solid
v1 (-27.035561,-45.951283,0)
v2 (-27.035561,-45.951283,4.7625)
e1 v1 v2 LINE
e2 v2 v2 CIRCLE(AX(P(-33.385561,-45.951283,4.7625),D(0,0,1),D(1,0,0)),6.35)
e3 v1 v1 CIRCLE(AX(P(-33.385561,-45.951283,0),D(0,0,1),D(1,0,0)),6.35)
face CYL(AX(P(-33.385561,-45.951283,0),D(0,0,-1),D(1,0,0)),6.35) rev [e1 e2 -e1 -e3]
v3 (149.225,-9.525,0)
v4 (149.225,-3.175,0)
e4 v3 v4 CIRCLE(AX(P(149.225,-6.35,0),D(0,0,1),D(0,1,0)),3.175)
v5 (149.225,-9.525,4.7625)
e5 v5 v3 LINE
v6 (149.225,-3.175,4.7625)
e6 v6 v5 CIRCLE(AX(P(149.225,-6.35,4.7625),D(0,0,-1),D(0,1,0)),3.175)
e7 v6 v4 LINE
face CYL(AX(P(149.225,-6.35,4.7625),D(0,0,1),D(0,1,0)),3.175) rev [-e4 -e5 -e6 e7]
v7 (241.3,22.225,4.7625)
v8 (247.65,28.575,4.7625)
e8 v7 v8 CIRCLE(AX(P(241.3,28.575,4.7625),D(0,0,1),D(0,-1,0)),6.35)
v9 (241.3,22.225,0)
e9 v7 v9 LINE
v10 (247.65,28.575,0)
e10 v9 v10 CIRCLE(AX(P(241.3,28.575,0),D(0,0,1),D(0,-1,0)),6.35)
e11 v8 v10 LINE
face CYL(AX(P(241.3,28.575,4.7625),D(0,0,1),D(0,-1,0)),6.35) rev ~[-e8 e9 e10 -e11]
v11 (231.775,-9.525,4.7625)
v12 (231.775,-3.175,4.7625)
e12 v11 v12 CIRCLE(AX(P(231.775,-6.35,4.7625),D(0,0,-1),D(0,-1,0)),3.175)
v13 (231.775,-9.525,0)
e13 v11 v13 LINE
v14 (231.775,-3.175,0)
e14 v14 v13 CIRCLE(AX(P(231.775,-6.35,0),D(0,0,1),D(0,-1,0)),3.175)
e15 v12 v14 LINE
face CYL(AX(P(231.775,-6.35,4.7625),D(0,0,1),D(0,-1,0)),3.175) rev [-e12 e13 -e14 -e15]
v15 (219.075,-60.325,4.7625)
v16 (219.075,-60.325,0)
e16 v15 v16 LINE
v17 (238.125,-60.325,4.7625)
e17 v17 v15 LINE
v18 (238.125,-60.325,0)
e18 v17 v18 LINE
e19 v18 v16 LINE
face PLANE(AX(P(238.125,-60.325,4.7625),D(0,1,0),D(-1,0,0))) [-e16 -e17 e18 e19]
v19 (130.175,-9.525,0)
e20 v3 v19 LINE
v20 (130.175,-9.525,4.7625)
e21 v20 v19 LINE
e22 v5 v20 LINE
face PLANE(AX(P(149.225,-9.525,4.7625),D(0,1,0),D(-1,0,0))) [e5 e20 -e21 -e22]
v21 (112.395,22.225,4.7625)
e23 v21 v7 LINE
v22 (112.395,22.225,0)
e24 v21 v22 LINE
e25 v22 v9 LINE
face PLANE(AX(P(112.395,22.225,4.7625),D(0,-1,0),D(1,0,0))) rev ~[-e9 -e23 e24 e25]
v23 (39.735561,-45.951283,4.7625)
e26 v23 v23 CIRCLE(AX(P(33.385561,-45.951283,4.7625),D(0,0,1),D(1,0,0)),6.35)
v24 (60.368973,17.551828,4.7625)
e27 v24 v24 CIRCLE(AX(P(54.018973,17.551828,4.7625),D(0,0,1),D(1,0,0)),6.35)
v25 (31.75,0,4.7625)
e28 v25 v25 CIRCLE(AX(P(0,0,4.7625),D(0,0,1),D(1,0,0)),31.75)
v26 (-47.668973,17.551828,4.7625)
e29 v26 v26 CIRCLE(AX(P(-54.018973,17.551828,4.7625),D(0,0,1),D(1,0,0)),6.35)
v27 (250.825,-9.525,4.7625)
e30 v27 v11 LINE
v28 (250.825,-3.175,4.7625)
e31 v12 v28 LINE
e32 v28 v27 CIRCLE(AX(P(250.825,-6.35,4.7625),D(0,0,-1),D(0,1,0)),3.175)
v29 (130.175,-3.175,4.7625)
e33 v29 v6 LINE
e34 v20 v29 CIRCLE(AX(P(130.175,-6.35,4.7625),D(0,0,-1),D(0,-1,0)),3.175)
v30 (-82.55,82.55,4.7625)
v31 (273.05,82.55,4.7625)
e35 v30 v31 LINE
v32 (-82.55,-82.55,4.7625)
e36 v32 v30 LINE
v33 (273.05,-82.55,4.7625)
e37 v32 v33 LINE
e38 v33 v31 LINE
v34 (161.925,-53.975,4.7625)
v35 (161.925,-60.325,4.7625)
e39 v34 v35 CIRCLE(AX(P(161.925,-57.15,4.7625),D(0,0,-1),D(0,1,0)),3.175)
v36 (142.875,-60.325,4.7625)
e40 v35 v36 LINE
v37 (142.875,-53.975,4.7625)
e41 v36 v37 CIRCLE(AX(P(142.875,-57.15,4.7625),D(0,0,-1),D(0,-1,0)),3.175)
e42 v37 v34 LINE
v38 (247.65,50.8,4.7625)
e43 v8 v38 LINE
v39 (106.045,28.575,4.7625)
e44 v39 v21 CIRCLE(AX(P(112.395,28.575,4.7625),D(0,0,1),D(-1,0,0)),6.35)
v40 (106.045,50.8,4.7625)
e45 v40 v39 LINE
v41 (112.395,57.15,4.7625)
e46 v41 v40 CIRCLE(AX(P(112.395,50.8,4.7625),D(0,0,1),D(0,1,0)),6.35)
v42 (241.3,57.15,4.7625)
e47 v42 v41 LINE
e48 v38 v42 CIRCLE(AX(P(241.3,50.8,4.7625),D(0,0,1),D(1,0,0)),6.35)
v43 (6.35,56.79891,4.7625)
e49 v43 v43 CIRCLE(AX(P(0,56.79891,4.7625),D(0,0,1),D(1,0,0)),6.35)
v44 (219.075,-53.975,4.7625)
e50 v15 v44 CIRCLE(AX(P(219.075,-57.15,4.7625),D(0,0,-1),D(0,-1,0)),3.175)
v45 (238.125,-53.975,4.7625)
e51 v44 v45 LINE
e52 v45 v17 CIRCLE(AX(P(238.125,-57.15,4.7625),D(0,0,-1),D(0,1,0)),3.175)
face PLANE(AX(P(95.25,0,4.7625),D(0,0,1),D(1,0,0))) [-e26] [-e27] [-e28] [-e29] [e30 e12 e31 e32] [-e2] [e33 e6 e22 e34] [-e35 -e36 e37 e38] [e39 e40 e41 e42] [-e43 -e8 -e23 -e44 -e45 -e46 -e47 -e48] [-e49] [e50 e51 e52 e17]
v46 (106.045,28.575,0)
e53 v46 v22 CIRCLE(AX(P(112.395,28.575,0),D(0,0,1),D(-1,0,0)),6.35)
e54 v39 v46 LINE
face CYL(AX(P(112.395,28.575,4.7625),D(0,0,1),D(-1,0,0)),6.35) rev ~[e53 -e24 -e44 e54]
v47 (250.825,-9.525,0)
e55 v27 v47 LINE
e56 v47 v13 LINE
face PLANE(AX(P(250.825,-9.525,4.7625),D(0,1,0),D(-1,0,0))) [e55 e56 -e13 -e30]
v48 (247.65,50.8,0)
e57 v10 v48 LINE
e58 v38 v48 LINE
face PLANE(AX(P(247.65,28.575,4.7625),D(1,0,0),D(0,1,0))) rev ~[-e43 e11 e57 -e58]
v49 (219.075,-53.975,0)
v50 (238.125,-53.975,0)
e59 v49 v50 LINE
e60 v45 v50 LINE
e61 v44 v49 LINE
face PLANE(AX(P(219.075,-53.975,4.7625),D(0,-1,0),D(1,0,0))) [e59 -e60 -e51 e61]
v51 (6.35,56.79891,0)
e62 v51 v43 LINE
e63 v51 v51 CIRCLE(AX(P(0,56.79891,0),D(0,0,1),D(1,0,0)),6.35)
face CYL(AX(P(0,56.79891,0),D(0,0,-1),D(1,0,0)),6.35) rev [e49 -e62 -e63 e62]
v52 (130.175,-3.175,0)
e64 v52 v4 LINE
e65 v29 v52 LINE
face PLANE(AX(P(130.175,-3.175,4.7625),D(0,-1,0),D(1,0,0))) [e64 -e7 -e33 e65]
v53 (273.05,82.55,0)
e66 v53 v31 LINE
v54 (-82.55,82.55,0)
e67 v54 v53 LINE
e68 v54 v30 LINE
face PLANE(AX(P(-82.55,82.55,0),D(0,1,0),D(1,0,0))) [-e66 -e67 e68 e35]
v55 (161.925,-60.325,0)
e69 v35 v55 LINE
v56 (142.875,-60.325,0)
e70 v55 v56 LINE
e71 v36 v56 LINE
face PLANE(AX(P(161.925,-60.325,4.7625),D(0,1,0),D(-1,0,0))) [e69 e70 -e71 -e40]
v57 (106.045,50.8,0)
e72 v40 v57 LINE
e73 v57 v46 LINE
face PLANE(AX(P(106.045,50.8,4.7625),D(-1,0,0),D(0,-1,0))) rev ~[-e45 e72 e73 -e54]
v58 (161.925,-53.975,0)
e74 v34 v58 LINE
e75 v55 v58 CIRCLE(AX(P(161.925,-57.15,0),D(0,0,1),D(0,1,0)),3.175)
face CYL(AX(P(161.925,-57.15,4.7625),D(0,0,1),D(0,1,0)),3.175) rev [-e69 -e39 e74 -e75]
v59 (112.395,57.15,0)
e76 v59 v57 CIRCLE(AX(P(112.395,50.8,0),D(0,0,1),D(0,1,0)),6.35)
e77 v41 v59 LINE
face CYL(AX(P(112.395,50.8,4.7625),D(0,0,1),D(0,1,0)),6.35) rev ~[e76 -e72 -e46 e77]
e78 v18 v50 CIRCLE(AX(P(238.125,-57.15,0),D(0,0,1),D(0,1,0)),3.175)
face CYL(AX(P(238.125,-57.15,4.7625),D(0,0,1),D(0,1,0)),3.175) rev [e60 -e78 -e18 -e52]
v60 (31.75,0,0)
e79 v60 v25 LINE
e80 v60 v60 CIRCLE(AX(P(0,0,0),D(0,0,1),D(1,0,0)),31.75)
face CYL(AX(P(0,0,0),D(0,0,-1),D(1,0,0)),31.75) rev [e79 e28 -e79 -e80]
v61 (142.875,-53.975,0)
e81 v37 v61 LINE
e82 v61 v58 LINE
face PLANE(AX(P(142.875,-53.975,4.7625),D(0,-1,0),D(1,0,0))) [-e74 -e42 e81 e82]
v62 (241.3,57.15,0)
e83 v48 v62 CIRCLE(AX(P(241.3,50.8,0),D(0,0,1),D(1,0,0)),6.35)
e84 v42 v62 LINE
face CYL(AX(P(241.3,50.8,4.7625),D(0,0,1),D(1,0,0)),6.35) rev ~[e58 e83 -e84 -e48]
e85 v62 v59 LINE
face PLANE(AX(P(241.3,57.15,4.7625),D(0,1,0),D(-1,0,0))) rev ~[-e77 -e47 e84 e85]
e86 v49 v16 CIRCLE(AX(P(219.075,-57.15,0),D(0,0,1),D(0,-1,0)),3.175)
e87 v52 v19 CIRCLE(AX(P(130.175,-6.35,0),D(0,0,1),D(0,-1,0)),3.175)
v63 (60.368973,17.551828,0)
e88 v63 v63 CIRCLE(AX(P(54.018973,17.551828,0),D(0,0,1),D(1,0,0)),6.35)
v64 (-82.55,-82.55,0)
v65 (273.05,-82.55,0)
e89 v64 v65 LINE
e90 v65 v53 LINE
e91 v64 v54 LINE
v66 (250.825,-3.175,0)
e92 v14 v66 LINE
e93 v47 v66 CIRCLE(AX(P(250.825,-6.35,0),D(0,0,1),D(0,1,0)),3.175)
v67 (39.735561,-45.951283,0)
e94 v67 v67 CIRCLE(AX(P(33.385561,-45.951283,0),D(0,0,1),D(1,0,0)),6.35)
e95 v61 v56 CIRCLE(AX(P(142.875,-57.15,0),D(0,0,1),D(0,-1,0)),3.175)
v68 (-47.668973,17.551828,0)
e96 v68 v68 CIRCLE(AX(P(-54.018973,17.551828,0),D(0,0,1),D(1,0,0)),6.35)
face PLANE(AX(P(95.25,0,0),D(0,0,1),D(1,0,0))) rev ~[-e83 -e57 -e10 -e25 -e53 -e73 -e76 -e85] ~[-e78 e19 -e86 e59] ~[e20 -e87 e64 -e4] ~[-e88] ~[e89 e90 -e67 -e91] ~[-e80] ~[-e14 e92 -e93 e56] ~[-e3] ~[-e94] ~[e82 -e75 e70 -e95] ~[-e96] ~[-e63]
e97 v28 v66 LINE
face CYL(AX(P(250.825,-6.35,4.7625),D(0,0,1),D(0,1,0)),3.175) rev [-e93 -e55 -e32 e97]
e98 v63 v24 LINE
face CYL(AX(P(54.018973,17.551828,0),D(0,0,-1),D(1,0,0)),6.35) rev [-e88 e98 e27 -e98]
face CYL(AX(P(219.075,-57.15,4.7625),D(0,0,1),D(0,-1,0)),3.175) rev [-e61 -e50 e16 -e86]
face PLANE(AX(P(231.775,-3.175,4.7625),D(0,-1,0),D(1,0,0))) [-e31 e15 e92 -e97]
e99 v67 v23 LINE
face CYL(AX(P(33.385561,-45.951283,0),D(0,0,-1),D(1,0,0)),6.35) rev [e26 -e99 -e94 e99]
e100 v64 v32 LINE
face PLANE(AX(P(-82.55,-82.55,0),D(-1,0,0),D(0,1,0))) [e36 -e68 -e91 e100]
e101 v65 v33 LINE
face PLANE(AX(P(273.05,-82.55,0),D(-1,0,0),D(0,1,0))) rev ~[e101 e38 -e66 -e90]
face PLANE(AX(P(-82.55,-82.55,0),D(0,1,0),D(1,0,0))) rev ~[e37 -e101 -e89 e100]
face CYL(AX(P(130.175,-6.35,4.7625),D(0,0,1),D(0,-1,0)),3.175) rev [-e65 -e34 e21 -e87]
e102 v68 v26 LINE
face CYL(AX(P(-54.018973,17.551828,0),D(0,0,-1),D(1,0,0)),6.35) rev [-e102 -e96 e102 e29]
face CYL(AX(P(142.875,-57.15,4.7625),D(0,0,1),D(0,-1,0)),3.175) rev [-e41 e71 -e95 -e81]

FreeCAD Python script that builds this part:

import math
import FreeCAD as App
import Part
import Sketcher
Q = App.Units.Quantity

doc = App.newDocument("Part")
body = doc.addObject("PartDesign::Body", "Body")

sketch1 = doc.addObject("Sketcher::SketchObject", "Sketch")
body.addObject(sketch1)
sketch1.AttachmentSupport = (doc.XY_Plane, [""])
sketch1.MapMode = "FlatFace"
sketch1.addGeometry([
    Part.LineSegment(App.Vector(-82.55, 82.55, 0), App.Vector(-82.55, -82.55, 0)),
    Part.LineSegment(App.Vector(-82.55, -82.55, 0), App.Vector(273.05, -82.55, 0)),
    Part.LineSegment(App.Vector(273.05, -82.55, 0), App.Vector(273.05, 82.55, 0)),
    Part.LineSegment(App.Vector(273.05, 82.55, 0), App.Vector(-82.55, 82.55, 0)),
    Part.Circle(App.Vector(-33.385561, -45.951283, 0), App.Vector(0, 0, 1), 6.35),
    Part.Circle(App.Vector(33.385561, -45.951283, 0), App.Vector(0, 0, 1), 6.35),
    Part.Circle(App.Vector(0, 0, 0), App.Vector(0, 0, 1), 31.75),
    Part.Circle(App.Vector(-54.018973, 17.551828, 0), App.Vector(0, 0, 1), 6.35),
    Part.Circle(App.Vector(54.018973, 17.551828, 0), App.Vector(0, 0, 1), 6.35),
    Part.Circle(App.Vector(0, 56.79891, 0), App.Vector(0, 0, 1), 6.35),
], False)
sketch1.addConstraint([
    Sketcher.Constraint("Coincident", 0, 2, 1, 1),
    Sketcher.Constraint("Coincident", 1, 2, 2, 1),
    Sketcher.Constraint("Coincident", 2, 2, 3, 1),
    Sketcher.Constraint("Coincident", 3, 2, 0, 1),
    Sketcher.Constraint("Vertical", 0),
    Sketcher.Constraint("Horizontal", 1),
    Sketcher.Constraint("Vertical", 2),
    Sketcher.Constraint("Horizontal", 3),
    Sketcher.Constraint("Coincident", 6, 3, -1, 1),
    Sketcher.Constraint("Equal", 4, 5),
    Sketcher.Constraint("Equal", 5, 7),
    Sketcher.Constraint("Equal", 7, 8),
    Sketcher.Constraint("Equal", 8, 9),
    Sketcher.Constraint("Symmetric", 4, 3, 5, 3, -2),
    Sketcher.Constraint("Symmetric", 7, 3, 8, 3, -2),
    Sketcher.Constraint("PointOnObject", 9, 3, -2),
    Sketcher.Constraint("Diameter", 4, Q("0.5 in")),
    Sketcher.Constraint("Diameter", 6, Q("2.5 in")),
    Sketcher.Constraint("DistanceX", 1, 1, 1, 2, Q("14 in")),
    Sketcher.Constraint("DistanceY", 0, 2, 0, 1, Q("6.5 in")),
    Sketcher.Constraint("DistanceX", 0, 2, -1, 1, Q("3.25 in")),
    Sketcher.Constraint("DistanceY", 0, 2, -1, 1, Q("3.25 in")),
    Sketcher.Constraint("DistanceX", 4, 3, -1, 1, 33.385561),
    Sketcher.Constraint("DistanceY", -1, 1, 7, 3, 17.551828),
    Sketcher.Constraint("DistanceY", -1, 1, 9, 3, 56.79891),
    Sketcher.Constraint("DistanceX", 7, 3, 4, 3, 20.633412),
    Sketcher.Constraint("DistanceY", 4, 3, 7, 3, 63.503111),
])
pad1 = doc.addObject("PartDesign::Pad", "Pad")
body.addObject(pad1)
pad1.Profile = sketch1
pad1.Length = Q("0.1875 in")

sketch2 = doc.addObject("Sketcher::SketchObject", "Sketch001")
body.addObject(sketch2)
sketch2.AttachmentSupport = (doc.XY_Plane, [""])
sketch2.MapMode = "FlatFace"
sketch2.AttachmentOffset = App.Placement(App.Vector(0, 0, 0.1875 * 25.4), App.Rotation())
sketch2.addGeometry([
    Part.LineSegment(App.Vector(130.175, -9.525, 0), App.Vector(149.225, -9.525, 0)),
    Part.ArcOfCircle(Part.Circle(App.Vector(149.225, -6.35, 0), App.Vector(0, 0, 1), 3.175), math.radians(-90), math.radians(90)),
    Part.LineSegment(App.Vector(149.225, -3.175, 0), App.Vector(130.175, -3.175, 0)),
    Part.ArcOfCircle(Part.Circle(App.Vector(130.175, -6.35, 0), App.Vector(0, 0, 1), 3.175), math.radians(90), math.radians(270)),
    Part.LineSegment(App.Vector(231.775, -9.525, 0), App.Vector(250.825, -9.525, 0)),
    Part.ArcOfCircle(Part.Circle(App.Vector(250.825, -6.35, 0), App.Vector(0, 0, 1), 3.175), math.radians(-90), math.radians(90)),
    Part.LineSegment(App.Vector(250.825, -3.175, 0), App.Vector(231.775, -3.175, 0)),
    Part.ArcOfCircle(Part.Circle(App.Vector(231.775, -6.35, 0), App.Vector(0, 0, 1), 3.175), math.radians(90), math.radians(270)),
    Part.LineSegment(App.Vector(219.075, -60.325, 0), App.Vector(238.125, -60.325, 0)),
    Part.ArcOfCircle(Part.Circle(App.Vector(238.125, -57.15, 0), App.Vector(0, 0, 1), 3.175), math.radians(-90), math.radians(90)),
    Part.LineSegment(App.Vector(238.125, -53.975, 0), App.Vector(219.075, -53.975, 0)),
    Part.ArcOfCircle(Part.Circle(App.Vector(219.075, -57.15, 0), App.Vector(0, 0, 1), 3.175), math.radians(90), math.radians(270)),
    Part.LineSegment(App.Vector(161.925, -53.975, 0), App.Vector(142.875, -53.975, 0)),
    Part.ArcOfCircle(Part.Circle(App.Vector(142.875, -57.15, 0), App.Vector(0, 0, 1), 3.175), math.radians(90), math.radians(270)),
    Part.LineSegment(App.Vector(142.875, -60.325, 0), App.Vector(161.925, -60.325, 0)),
    Part.ArcOfCircle(Part.Circle(App.Vector(161.925, -57.15, 0), App.Vector(0, 0, 1), 3.175), math.radians(-90), math.radians(90)),
], False)
sketch2.addConstraint([
    Sketcher.Constraint("Tangent", 0, 2, 1, 1),
    Sketcher.Constraint("Tangent", 1, 2, 2, 1),
    Sketcher.Constraint("Tangent", 2, 2, 3, 1),
    Sketcher.Constraint("Tangent", 3, 2, 0, 1),
    Sketcher.Constraint("Tangent", 4, 2, 5, 1),
    Sketcher.Constraint("Tangent", 5, 2, 6, 1),
    Sketcher.Constraint("Tangent", 6, 2, 7, 1),
    Sketcher.Constraint("Tangent", 7, 2, 4, 1),
    Sketcher.Constraint("Tangent", 8, 2, 9, 1),
    Sketcher.Constraint("Tangent", 9, 2, 10, 1),
    Sketcher.Constraint("Tangent", 10, 2, 11, 1),
    Sketcher.Constraint("Tangent", 11, 2, 8, 1),
    Sketcher.Constraint("Tangent", 12, 2, 13, 1),
    Sketcher.Constraint("Tangent", 13, 2, 14, 1),
    Sketcher.Constraint("Tangent", 14, 2, 15, 1),
    Sketcher.Constraint("Tangent", 15, 2, 12, 1),
    Sketcher.Constraint("Horizontal", 0),
    Sketcher.Constraint("Horizontal", 2),
    Sketcher.Constraint("Horizontal", 4),
    Sketcher.Constraint("Horizontal", 6),
    Sketcher.Constraint("Horizontal", 8),
    Sketcher.Constraint("Horizontal", 10),
    Sketcher.Constraint("Horizontal", 12),
    Sketcher.Constraint("Horizontal", 14),
    Sketcher.Constraint("Equal", 3, 5),
    Sketcher.Constraint("Equal", 7, 9),
    Sketcher.Constraint("Equal", 11, 13),
    Sketcher.Constraint("Horizontal", 3, 3, 5, 3),
    Sketcher.Constraint("Horizontal", 11, 3, 13, 3),
    Sketcher.Constraint("Equal", 2, 4),
    Sketcher.Constraint("Equal", 6, 8),
    Sketcher.Constraint("Equal", 10, 12),
    Sketcher.Constraint("Radius", 1, Q("0.125 in")),
    Sketcher.Constraint("DistanceX", 1, 3, 5, 3, Q("4 in")),
    Sketcher.Constraint("DistanceY", 9, 3, 7, 3, Q("2 in")),
    Sketcher.Constraint("DistanceX", 13, 3, 11, 3, Q("3 in")),
    Sketcher.Constraint("DistanceX", 0, 1, 0, 2, Q("0.75 in")),
    Sketcher.Constraint("DistanceX", 9, 3, 5, 3, Q("0.5 in")),
    Sketcher.Constraint("DistanceY", 1, 3, -1, 1, Q("0.25 in")),
    Sketcher.Constraint("DistanceX", -1, 1, 1, 3, Q("5.875 in")),
])
pocket1 = doc.addObject("PartDesign::Pocket", "Pocket")
body.addObject(pocket1)
pocket1.Profile = sketch2
pocket1.Type = "ThroughAll"

sketch3 = doc.addObject("Sketcher::SketchObject", "Sketch002")
body.addObject(sketch3)
sketch3.AttachmentSupport = (doc.XY_Plane, [""])
sketch3.MapMode = "FlatFace"
sketch3.AttachmentOffset = App.Placement(App.Vector(0, 0, 0.1875 * 25.4), App.Rotation())
sketch3.addGeometry([
    Part.LineSegment(App.Vector(247.65, 28.575, 0), App.Vector(247.65, 50.8, 0)),
    Part.ArcOfCircle(Part.Circle(App.Vector(241.3, 50.8, 0), App.Vector(0, 0, 1), 6.35), math.radians(0), math.radians(90)),
    Part.LineSegment(App.Vector(241.3, 57.15, 0), App.Vector(112.395, 57.15, 0)),
    Part.ArcOfCircle(Part.Circle(App.Vector(112.395, 50.8, 0), App.Vector(0, 0, 1), 6.35), math.radians(90), math.radians(180)),
    Part.LineSegment(App.Vector(106.045, 50.8, 0), App.Vector(106.045, 28.575, 0)),
    Part.ArcOfCircle(Part.Circle(App.Vector(112.395, 28.575, 0), App.Vector(0, 0, 1), 6.35), math.radians(180), math.radians(270)),
    Part.LineSegment(App.Vector(112.395, 22.225, 0), App.Vector(241.3, 22.225, 0)),
    Part.ArcOfCircle(Part.Circle(App.Vector(241.3, 28.575, 0), App.Vector(0, 0, 1), 6.35), math.radians(-90), math.radians(0)),
], False)
sketch3.addConstraint([
    Sketcher.Constraint("Tangent", 0, 2, 1, 1),
    Sketcher.Constraint("Tangent", 1, 2, 2, 1),
    Sketcher.Constraint("Tangent", 2, 2, 3, 1),
    Sketcher.Constraint("Tangent", 3, 2, 4, 1),
    Sketcher.Constraint("Tangent", 4, 2, 5, 1),
    Sketcher.Constraint("Tangent", 5, 2, 6, 1),
    Sketcher.Constraint("Tangent", 6, 2, 7, 1),
    Sketcher.Constraint("Tangent", 7, 2, 0, 1),
    Sketcher.Constraint("Vertical", 0),
    Sketcher.Constraint("Horizontal", 2),
    Sketcher.Constraint("Vertical", 4),
    Sketcher.Constraint("Horizontal", 6),
    Sketcher.Constraint("Equal", 1, 3),
    Sketcher.Constraint("Equal", 3, 5),
    Sketcher.Constraint("Equal", 5, 7),
    Sketcher.Constraint("Radius", 1, Q("0.25 in")),
    Sketcher.Constraint("DistanceY", -1, 1, 1, 3, Q("2 in")),
    Sketcher.Constraint("DistanceX", -1, 1, 1, 3, Q("9.5 in")),
    Sketcher.Constraint("DistanceX", 2, 2, 2, 1, Q("5.075 in")),
    Sketcher.Constraint("DistanceY", 0, 1, 0, 2, Q("0.875 in")),
])
pocket2 = doc.addObject("PartDesign::Pocket", "Pocket001")
body.addObject(pocket2)
pocket2.Profile = sketch3
pocket2.Type = "ThroughAll"

doc.recompute()
